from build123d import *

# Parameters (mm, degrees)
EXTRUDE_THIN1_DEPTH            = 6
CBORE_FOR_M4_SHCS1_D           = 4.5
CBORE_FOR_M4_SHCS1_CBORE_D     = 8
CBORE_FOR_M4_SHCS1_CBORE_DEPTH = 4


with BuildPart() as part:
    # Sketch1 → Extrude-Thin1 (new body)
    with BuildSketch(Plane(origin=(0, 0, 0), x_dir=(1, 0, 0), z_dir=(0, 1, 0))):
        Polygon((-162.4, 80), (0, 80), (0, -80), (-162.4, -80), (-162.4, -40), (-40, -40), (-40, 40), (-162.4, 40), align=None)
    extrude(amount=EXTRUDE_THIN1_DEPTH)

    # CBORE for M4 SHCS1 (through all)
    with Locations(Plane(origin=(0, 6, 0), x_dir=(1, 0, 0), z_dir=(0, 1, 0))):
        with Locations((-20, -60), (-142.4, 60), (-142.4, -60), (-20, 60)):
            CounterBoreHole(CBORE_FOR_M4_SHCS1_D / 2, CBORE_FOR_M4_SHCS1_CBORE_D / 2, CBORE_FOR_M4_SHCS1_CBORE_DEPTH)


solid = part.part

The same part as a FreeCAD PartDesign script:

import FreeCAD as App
import Part
import Sketcher

V = App.Vector


def add_polygon(sketch, points):
    """Adds a closed chain of lines whose ends are joined by coincident constraints."""
    first, n = sketch.GeometryCount, len(points)
    for a, b in zip(points, points[1:] + points[:1]):
        sketch.addGeometry(Part.LineSegment(App.Vector(*a, 0), App.Vector(*b, 0)), False)
    for i in range(n):
        sketch.addConstraint(Sketcher.Constraint("Coincident", first + i, 2, first + (i + 1) % n, 1))

doc = App.newDocument("Part")
body = doc.addObject("PartDesign::Body", "Body")

sketch1 = doc.addObject("Sketcher::SketchObject", "Sketch")
body.addObject(sketch1)
sketch1.AttachmentSupport = (doc.XZ_Plane, [""])
sketch1.MapMode = "FlatFace"
add_polygon(sketch1, [(0, -80), (-162.4, -80), (-162.4, -40), (-40, -40), (-40, 40), (-162.4, 40), (-162.4, 80), (0, 80)])
sketch1.addConstraint(Sketcher.Constraint("Horizontal", 0))
sketch1.addConstraint(Sketcher.Constraint("Vertical", 1))
sketch1.addConstraint(Sketcher.Constraint("Horizontal", 2))
sketch1.addConstraint(Sketcher.Constraint("Vertical", 3))
sketch1.addConstraint(Sketcher.Constraint("Horizontal", 4))
sketch1.addConstraint(Sketcher.Constraint("Vertical", 5))
sketch1.addConstraint(Sketcher.Constraint("Horizontal", 6))
sketch1.addConstraint(Sketcher.Constraint("Vertical", 7))
sketch1.addConstraint(Sketcher.Constraint("Symmetric", 6, 2, 7, 2, -1, 1))
sketch1.addConstraint(Sketcher.Constraint("Symmetric", 1, 2, 4, 2, -1))
sketch1.addConstraint(Sketcher.Constraint("DistanceY", 1, 1, 1, 2, 40.0))
sketch1.addConstraint(Sketcher.Constraint("DistanceY", 3, 1, 3, 2, 80.0))
sketch1.addConstraint(Sketcher.Constraint("DistanceX", 0, 2, 0, 1, 162.4))
sketch1.addConstraint(Sketcher.Constraint("DistanceX", 2, 1, 2, 2, 122.4))
pad1 = doc.addObject("PartDesign::Pad", "Pad")
body.addObject(pad1)
pad1.Profile = sketch1
pad1.Length = 6
pad1.Reversed = True

sketch2 = doc.addObject("Sketcher::SketchObject", "Sketch001")
body.addObject(sketch2)
sketch2.AttachmentSupport = (doc.XZ_Plane, [""])
sketch2.MapMode = "FlatFace"
sketch2.AttachmentOffset = App.Placement(V(0, 0, -6), App.Rotation())
sketch2.addGeometry(Part.Circle(V(-20, 60, 0), V(0, 0, 1), 2.25), False)
sketch2.addGeometry(Part.Circle(V(-142.4, -60, 0), V(0, 0, 1), 2.25), False)
sketch2.addGeometry(Part.Circle(V(-142.4, 60, 0), V(0, 0, 1), 2.25), False)
sketch2.addGeometry(Part.Circle(V(-20, -60, 0), V(0, 0, 1), 2.25), False)
sketch2.addConstraint(Sketcher.Constraint("Equal", 0, 1))
sketch2.addConstraint(Sketcher.Constraint("Equal", 1, 2))
sketch2.addConstraint(Sketcher.Constraint("Equal", 2, 3))
sketch2.addConstraint(Sketcher.Constraint("Symmetric", 1, 3, 2, 3, -1))
sketch2.addConstraint(Sketcher.Constraint("Symmetric", 0, 3, 3, 3, -1))
sketch2.addConstraint(Sketcher.Constraint("Horizontal", 0, 3, 2, 3))
sketch2.addConstraint(Sketcher.Constraint("Diameter", 0, 4.5))
sketch2.addConstraint(Sketcher.Constraint("DistanceX", 0, 3, -1, 1, 20.0))
sketch2.addConstraint(Sketcher.Constraint("DistanceY", -1, 1, 0, 3, 60.0))
sketch2.addConstraint(Sketcher.Constraint("DistanceX", 1, 3, -1, 1, 142.4))
doc.recompute()
hole = doc.addObject("PartDesign::Hole", "Hole")
body.addObject(hole)
hole.Profile = sketch2
hole.ThreadType = "None"
hole.Diameter = 4.5
hole.DepthType = "ThroughAll"
hole.HoleCutType = "Counterbore"
hole.HoleCutDiameter = 8
hole.HoleCutDepth = 4
hole.Reversed = True

doc.recompute()
